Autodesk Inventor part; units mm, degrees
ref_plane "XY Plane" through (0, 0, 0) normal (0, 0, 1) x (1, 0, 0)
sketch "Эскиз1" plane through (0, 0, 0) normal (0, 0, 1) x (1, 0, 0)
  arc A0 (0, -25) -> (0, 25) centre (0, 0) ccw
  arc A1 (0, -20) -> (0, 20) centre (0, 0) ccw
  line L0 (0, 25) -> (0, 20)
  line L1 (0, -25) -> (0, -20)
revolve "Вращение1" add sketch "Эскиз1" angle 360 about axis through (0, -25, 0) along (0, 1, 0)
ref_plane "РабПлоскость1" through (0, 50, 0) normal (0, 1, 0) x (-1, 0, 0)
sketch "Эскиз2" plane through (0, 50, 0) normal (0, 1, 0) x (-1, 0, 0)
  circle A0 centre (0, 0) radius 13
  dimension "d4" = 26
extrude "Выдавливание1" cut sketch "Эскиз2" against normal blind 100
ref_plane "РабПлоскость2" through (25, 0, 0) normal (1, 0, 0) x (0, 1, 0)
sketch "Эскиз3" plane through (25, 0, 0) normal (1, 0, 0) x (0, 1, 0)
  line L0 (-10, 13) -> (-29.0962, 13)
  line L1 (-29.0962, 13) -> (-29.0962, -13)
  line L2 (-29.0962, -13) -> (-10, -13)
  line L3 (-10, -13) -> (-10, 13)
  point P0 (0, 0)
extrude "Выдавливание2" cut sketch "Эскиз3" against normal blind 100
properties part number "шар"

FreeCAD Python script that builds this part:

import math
import FreeCAD as App
import Part
import Sketcher

V = App.Vector

doc = App.newDocument("Part")
params = doc.addObject("Spreadsheet::Sheet", "Params")
for row, (alias, value) in enumerate([
    ("sketch1_radius", "25 mm"),
    ("sketch1_radius2", "20 mm"),
    ("revolution_angle", "360 deg"),
    ("sketch2_diameter", "26 mm"),
    ("pocket1_length", "100 mm"),
    ("sketch3_height", "26 mm"),
    ("pocket2_length", "100 mm"),
], start=1):
    params.set(f"A{row}", alias)
    params.set(f"B{row}", "=" + value)
    params.setAlias(f"B{row}", alias)

body = doc.addObject("PartDesign::Body", "Body")

sketch1 = body.newObject("Sketcher::SketchObject", "Sketch")
sketch1.AttachmentSupport = (doc.getObject("XY_Plane"), [""])
sketch1.MapMode = "FlatFace"
sketch1.addGeometry(Part.LineSegment(V(0, -20, 0), V(0, -25, 0)), False)
sketch1.addGeometry(Part.ArcOfCircle(Part.Circle(V(0, 0, 0), V(0, 0, 1), 25), math.radians(-90), math.radians(90)), False)
sketch1.addGeometry(Part.LineSegment(V(0, 25, 0), V(0, 20, 0)), False)
sketch1.addGeometry(Part.ArcOfCircle(Part.Circle(V(0, 0, 0), V(0, 0, 1), 20), math.radians(-90), math.radians(90)), False)
sketch1.addConstraint(Sketcher.Constraint("Coincident", 0, 2, 1, 1))
sketch1.addConstraint(Sketcher.Constraint("Coincident", 1, 2, 2, 1))
sketch1.addConstraint(Sketcher.Constraint("Coincident", 2, 2, 3, 2))
sketch1.addConstraint(Sketcher.Constraint("Coincident", 3, 1, 0, 1))
sketch1.addConstraint(Sketcher.Constraint("Vertical", 0))
sketch1.addConstraint(Sketcher.Constraint("Vertical", 2))
sketch1.addConstraint(Sketcher.Constraint("Coincident", 1, 3, -1, 1))
sketch1.addConstraint(Sketcher.Constraint("Coincident", 3, 3, -1, 1))
sketch1.addConstraint(Sketcher.Constraint("PointOnObject", 0, 2, -2))
sketch1.addConstraint(Sketcher.Constraint("PointOnObject", 1, 2, -2))
sketch1.addConstraint(Sketcher.Constraint("Radius", 1, 25.0))
sketch1.addConstraint(Sketcher.Constraint("Radius", 3, 20.0))
sketch1.setExpression("Constraints[10]", "Params.sketch1_radius")
sketch1.setExpression("Constraints[11]", "Params.sketch1_radius2")
revolution = body.newObject("PartDesign::Revolution", "Revolution")
revolution.Profile = sketch1
revolution.ReferenceAxis = (sketch1, ["V_Axis"])
revolution.setExpression("Angle", "Params.revolution_angle")

sketch2 = body.newObject("Sketcher::SketchObject", "Sketch001")
sketch2.AttachmentSupport = (doc.getObject("XZ_Plane"), [""])
sketch2.MapMode = "FlatFace"
sketch2.AttachmentOffset = App.Placement(V(0, 0, -50), App.Rotation())
sketch2.addGeometry(Part.Circle(V(0, 0, 0), V(0, 0, 1), 13), False)
sketch2.addConstraint(Sketcher.Constraint("Coincident", 0, 3, -1, 1))
sketch2.addConstraint(Sketcher.Constraint("Diameter", 0, 26.0))
sketch2.setExpression("Constraints[1]", "Params.sketch2_diameter")
pocket1 = body.newObject("PartDesign::Pocket", "Pocket")
pocket1.Profile = sketch2
pocket1.setExpression("Length", "Params.pocket1_length")
pocket1.Reversed = True

sketch3 = body.newObject("Sketcher::SketchObject", "Sketch002")
sketch3.AttachmentSupport = (doc.getObject("YZ_Plane"), [""])
sketch3.MapMode = "FlatFace"
sketch3.AttachmentOffset = App.Placement(V(0, 0, 25), App.Rotation())
sketch3.addGeometry(Part.LineSegment(V(-10, -13, 0), V(-10, 13, 0)), False)
sketch3.addGeometry(Part.LineSegment(V(-10, 13, 0), V(-29, 13, 0)), False)
sketch3.addGeometry(Part.LineSegment(V(-29, 13, 0), V(-29, -13, 0)), False)
sketch3.addGeometry(Part.LineSegment(V(-29, -13, 0), V(-10, -13, 0)), False)
sketch3.addConstraint(Sketcher.Constraint("Coincident", 0, 2, 1, 1))
sketch3.addConstraint(Sketcher.Constraint("Coincident", 1, 2, 2, 1))
sketch3.addConstraint(Sketcher.Constraint("Coincident", 2, 2, 3, 1))
sketch3.addConstraint(Sketcher.Constraint("Coincident", 3, 2, 0, 1))
sketch3.addConstraint(Sketcher.Constraint("Vertical", 0))
sketch3.addConstraint(Sketcher.Constraint("Horizontal", 1))
sketch3.addConstraint(Sketcher.Constraint("Vertical", 2))
sketch3.addConstraint(Sketcher.Constraint("Horizontal", 3))
sketch3.addConstraint(Sketcher.Constraint("DistanceY", 0, 1, 0, 2, 26.0))
sketch3.addConstraint(Sketcher.Constraint("DistanceX", 0, 2, -1, 1, 10.0))
sketch3.addConstraint(Sketcher.Constraint("DistanceY", -1, 1, 0, 2, 13.0))
sketch3.addConstraint(Sketcher.Constraint("DistanceX", 1, 2, 1, 1, 19.0962))
sketch3.setExpression("Constraints[8]", "Params.sketch3_height")
pocket2 = body.newObject("PartDesign::Pocket", "Pocket001")
pocket2.Profile = sketch3
pocket2.setExpression("Length", "Params.pocket2_length")

doc.recompute()
